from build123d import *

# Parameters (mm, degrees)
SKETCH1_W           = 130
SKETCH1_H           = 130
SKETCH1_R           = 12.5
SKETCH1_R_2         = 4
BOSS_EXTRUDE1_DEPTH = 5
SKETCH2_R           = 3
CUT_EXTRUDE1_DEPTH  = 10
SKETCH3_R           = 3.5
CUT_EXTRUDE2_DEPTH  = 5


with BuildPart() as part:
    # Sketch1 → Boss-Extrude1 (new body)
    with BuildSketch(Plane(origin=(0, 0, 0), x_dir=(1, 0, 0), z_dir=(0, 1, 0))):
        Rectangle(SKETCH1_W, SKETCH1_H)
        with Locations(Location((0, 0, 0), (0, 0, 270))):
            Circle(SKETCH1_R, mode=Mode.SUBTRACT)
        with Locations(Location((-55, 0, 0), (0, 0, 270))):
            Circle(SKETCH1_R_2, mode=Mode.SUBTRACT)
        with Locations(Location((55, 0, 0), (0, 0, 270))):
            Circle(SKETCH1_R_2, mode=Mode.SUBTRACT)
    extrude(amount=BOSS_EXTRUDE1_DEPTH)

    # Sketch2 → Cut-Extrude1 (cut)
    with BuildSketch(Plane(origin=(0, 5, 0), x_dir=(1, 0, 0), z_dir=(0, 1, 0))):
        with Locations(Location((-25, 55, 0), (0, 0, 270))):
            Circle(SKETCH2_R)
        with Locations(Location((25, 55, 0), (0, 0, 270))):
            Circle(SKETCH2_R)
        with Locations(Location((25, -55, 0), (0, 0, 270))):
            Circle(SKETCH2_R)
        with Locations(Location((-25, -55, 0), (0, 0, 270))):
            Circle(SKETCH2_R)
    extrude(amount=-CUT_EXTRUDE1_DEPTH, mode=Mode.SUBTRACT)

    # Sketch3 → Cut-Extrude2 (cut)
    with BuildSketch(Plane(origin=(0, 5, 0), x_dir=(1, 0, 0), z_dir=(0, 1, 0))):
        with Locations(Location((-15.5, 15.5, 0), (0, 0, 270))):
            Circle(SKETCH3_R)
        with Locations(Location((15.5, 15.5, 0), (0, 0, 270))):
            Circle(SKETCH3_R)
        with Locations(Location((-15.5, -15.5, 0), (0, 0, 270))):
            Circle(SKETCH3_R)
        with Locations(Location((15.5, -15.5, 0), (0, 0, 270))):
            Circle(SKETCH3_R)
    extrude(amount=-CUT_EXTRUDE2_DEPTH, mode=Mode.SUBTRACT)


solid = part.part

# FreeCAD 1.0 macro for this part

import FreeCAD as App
import Part
import Sketcher

V = App.Vector

doc = App.newDocument("Part")
params = doc.addObject("Spreadsheet::Sheet", "Params")
for row, (alias, value) in enumerate([
    ("sketch1_diameter", "8 mm"),
    ("sketch1_diameter2", "25 mm"),
    ("sketch1_width", "130 mm"),
    ("pad1_length", "5 mm"),
    ("sketch2_diameter", "6 mm"),
    ("pocket1_length", "10 mm"),
    ("sketch3_diameter", "7 mm"),
    ("pocket2_length", "5 mm"),
], start=1):
    params.set(f"A{row}", alias)
    params.set(f"B{row}", "=" + value)
    params.setAlias(f"B{row}", alias)

body = doc.addObject("PartDesign::Body", "Body")

sketch1 = doc.addObject("Sketcher::SketchObject", "Sketch")
body.addObject(sketch1)
sketch1.AttachmentSupport = (doc.XZ_Plane, [""])
sketch1.MapMode = "FlatFace"
sketch1.addGeometry([
    Part.LineSegment(V(-65, -65, 0), V(-65, 65, 0)),
    Part.LineSegment(V(-65, 65, 0), V(65, 65, 0)),
    Part.LineSegment(V(65, 65, 0), V(65, -65, 0)),
    Part.LineSegment(V(65, -65, 0), V(-65, -65, 0)),
    Part.Circle(V(-55, 0, 0), V(0, 0, 1), 4),
    Part.Circle(V(0, 0, 0), V(0, 0, 1), 12.5),
    Part.Circle(V(55, 0, 0), V(0, 0, 1), 4),
], False)
sketch1.addConstraint([
    Sketcher.Constraint("Coincident", 0, 2, 1, 1),
    Sketcher.Constraint("Coincident", 1, 2, 2, 1),
    Sketcher.Constraint("Coincident", 2, 2, 3, 1),
    Sketcher.Constraint("Coincident", 3, 2, 0, 1),
    Sketcher.Constraint("Vertical", 0),
    Sketcher.Constraint("Horizontal", 1),
    Sketcher.Constraint("Vertical", 2),
    Sketcher.Constraint("Horizontal", 3),
    Sketcher.Constraint("Coincident", 5, 3, -1, 1),
    Sketcher.Constraint("Equal", 4, 6),
    Sketcher.Constraint("Symmetric", 4, 3, 6, 3, -1, 1),
    Sketcher.Constraint("Symmetric", 0, 2, 2, 2, -1, 1),
    Sketcher.Constraint("PointOnObject", 4, 3, -1),
    Sketcher.Constraint("Equal", 3, 0),
    Sketcher.Constraint("Diameter", 4, 8.0),
    Sketcher.Constraint("Diameter", 5, 25.0),
    Sketcher.Constraint("DistanceX", 1, 1, 1, 2, 130.0),
    Sketcher.Constraint("DistanceX", 4, 3, -1, 1, 55.0),
])
sketch1.setExpression("Constraints[14]", "Params.sketch1_diameter")
sketch1.setExpression("Constraints[15]", "Params.sketch1_diameter2")
sketch1.setExpression("Constraints[16]", "Params.sketch1_width")
pad1 = doc.addObject("PartDesign::Pad", "Pad")
body.addObject(pad1)
pad1.Profile = sketch1
pad1.setExpression("Length", "Params.pad1_length")
pad1.Reversed = True

sketch2 = doc.addObject("Sketcher::SketchObject", "Sketch001")
body.addObject(sketch2)
sketch2.AttachmentSupport = (doc.XZ_Plane, [""])
sketch2.MapMode = "FlatFace"
sketch2.AttachmentOffset = App.Placement(V(0, 0, -5), App.Rotation())
sketch2.addGeometry([
    Part.Circle(V(-25, -55, 0), V(0, 0, 1), 3),
    Part.Circle(V(25, -55, 0), V(0, 0, 1), 3),
    Part.Circle(V(25, 55, 0), V(0, 0, 1), 3),
    Part.Circle(V(-25, 55, 0), V(0, 0, 1), 3),
], False)
sketch2.addConstraint([
    Sketcher.Constraint("Equal", 0, 1),
    Sketcher.Constraint("Equal", 1, 2),
    Sketcher.Constraint("Equal", 2, 3),
    Sketcher.Constraint("Symmetric", 0, 3, 2, 3, -1, 1),
    Sketcher.Constraint("Symmetric", 1, 3, 3, 3, -1, 1),
    Sketcher.Constraint("Symmetric", 0, 3, 1, 3, -2),
    Sketcher.Constraint("Diameter", 0, 6.0),
    Sketcher.Constraint("DistanceX", 0, 3, -1, 1, 25.0),
    Sketcher.Constraint("DistanceY", 0, 3, -1, 1, 55.0),
])
sketch2.setExpression("Constraints[6]", "Params.sketch2_diameter")
pocket1 = doc.addObject("PartDesign::Pocket", "Pocket")
body.addObject(pocket1)
pocket1.Profile = sketch2
pocket1.setExpression("Length", "Params.pocket1_length")
pocket1.Reversed = True

sketch3 = doc.addObject("Sketcher::SketchObject", "Sketch002")
body.addObject(sketch3)
sketch3.AttachmentSupport = (doc.XZ_Plane, [""])
sketch3.MapMode = "FlatFace"
sketch3.AttachmentOffset = App.Placement(V(0, 0, -5), App.Rotation())
sketch3.addGeometry([
    Part.Circle(V(-15.5, -15.5, 0), V(0, 0, 1), 3.5),
    Part.Circle(V(15.5, -15.5, 0), V(0, 0, 1), 3.5),
    Part.Circle(V(-15.5, 15.5, 0), V(0, 0, 1), 3.5),
    Part.Circle(V(15.5, 15.5, 0), V(0, 0, 1), 3.5),
], False)
sketch3.addConstraint([
    Sketcher.Constraint("Equal", 0, 1),
    Sketcher.Constraint("Equal", 1, 2),
    Sketcher.Constraint("Equal", 2, 3),
    Sketcher.Constraint("Symmetric", 1, 3, 2, 3, -1, 1),
    Sketcher.Constraint("Symmetric", 0, 3, 3, 3, -1, 1),
    Sketcher.Constraint("Symmetric", 0, 3, 1, 3, -2),
    Sketcher.Constraint("Diameter", 0, 7.0),
    Sketcher.Constraint("DistanceX", 0, 3, 1, 3, 31.0),
    Sketcher.Constraint("DistanceY", 0, 3, 2, 3, 31.0),
])
sketch3.setExpression("Constraints[6]", "Params.sketch3_diameter")
pocket2 = doc.addObject("PartDesign::Pocket", "Pocket001")
body.addObject(pocket2)
pocket2.Profile = sketch3
pocket2.setExpression("Length", "Params.pocket2_length")
pocket2.Reversed = True

doc.recompute()
